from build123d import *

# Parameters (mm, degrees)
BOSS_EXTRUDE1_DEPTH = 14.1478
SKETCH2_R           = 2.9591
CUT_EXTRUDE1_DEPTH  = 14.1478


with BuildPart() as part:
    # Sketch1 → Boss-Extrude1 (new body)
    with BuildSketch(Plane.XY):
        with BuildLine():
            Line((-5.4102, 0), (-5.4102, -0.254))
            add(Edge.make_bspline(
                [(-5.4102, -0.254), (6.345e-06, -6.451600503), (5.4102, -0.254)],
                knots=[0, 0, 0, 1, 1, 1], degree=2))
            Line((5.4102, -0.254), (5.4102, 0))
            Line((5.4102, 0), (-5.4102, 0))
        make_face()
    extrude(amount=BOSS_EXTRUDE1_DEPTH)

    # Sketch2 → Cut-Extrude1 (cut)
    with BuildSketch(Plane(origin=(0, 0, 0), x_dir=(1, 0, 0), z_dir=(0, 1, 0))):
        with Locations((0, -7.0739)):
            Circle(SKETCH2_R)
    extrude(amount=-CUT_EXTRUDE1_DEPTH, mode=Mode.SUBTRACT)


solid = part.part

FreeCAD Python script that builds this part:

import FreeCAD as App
import Part
import Sketcher

V = App.Vector
Q = App.Units.Quantity

doc = App.newDocument("Part")
body = doc.addObject("PartDesign::Body", "Body")

# Sketch on XY plane
sketch1 = body.newObject("Sketcher::SketchObject", "Sketch")
sketch1.AttachmentSupport = (doc.getObject("XY_Plane"), [""])
sketch1.MapMode = "FlatFace"
sketch1.addGeometry([
    Part.LineSegment(V(-5.4102, 0, 0), V(-5.4102, -0.254, 0)),
    Part.BSplineCurve([V(-5.4102, -0.254, 0), V(0.000006, -6.451601, 0), V(5.4102, -0.254, 0)], [3, 3], [0, 1], False, 2, [1, 1, 1], False),
    Part.LineSegment(V(5.4102, -0.254, 0), V(5.4102, 0, 0)),
    Part.LineSegment(V(5.4102, 0, 0), V(-5.4102, 0, 0)),
], False)
sketch1.addConstraint([
    Sketcher.Constraint("Block", 1),
    Sketcher.Constraint("Coincident", 0, 2, 1, 1),
    Sketcher.Constraint("Coincident", 1, 2, 2, 1),
    Sketcher.Constraint("Coincident", 2, 2, 3, 1),
    Sketcher.Constraint("Coincident", 3, 2, 0, 1),
    Sketcher.Constraint("Vertical", 0),
    Sketcher.Constraint("Vertical", 2),
    Sketcher.Constraint("Horizontal", 3),
    Sketcher.Constraint("PointOnObject", 2, 2, -1),
])
pad1 = body.newObject("PartDesign::Pad", "Pad")
pad1.Profile = sketch1
pad1.Length = Q("0.557 in")

# Sketch on XZ plane
sketch2 = body.newObject("Sketcher::SketchObject", "Sketch001")
sketch2.AttachmentSupport = (doc.getObject("XZ_Plane"), [""])
sketch2.MapMode = "FlatFace"
sketch2.addGeometry(Part.Circle(V(0, 7.1, 0), V(0, 0, 1), 3), False)
sketch2.addConstraint([
    Sketcher.Constraint("PointOnObject", 0, 3, -2),
    Sketcher.Constraint("Diameter", 0, Q("0.233 in")),
    Sketcher.Constraint("DistanceY", -1, 1, 0, 3, Q("0.2785 in")),
])
pocket1 = body.newObject("PartDesign::Pocket", "Pocket")
pocket1.Profile = sketch2
pocket1.Length = Q("0.557 in")
pocket1.Reversed = True

doc.recompute()
